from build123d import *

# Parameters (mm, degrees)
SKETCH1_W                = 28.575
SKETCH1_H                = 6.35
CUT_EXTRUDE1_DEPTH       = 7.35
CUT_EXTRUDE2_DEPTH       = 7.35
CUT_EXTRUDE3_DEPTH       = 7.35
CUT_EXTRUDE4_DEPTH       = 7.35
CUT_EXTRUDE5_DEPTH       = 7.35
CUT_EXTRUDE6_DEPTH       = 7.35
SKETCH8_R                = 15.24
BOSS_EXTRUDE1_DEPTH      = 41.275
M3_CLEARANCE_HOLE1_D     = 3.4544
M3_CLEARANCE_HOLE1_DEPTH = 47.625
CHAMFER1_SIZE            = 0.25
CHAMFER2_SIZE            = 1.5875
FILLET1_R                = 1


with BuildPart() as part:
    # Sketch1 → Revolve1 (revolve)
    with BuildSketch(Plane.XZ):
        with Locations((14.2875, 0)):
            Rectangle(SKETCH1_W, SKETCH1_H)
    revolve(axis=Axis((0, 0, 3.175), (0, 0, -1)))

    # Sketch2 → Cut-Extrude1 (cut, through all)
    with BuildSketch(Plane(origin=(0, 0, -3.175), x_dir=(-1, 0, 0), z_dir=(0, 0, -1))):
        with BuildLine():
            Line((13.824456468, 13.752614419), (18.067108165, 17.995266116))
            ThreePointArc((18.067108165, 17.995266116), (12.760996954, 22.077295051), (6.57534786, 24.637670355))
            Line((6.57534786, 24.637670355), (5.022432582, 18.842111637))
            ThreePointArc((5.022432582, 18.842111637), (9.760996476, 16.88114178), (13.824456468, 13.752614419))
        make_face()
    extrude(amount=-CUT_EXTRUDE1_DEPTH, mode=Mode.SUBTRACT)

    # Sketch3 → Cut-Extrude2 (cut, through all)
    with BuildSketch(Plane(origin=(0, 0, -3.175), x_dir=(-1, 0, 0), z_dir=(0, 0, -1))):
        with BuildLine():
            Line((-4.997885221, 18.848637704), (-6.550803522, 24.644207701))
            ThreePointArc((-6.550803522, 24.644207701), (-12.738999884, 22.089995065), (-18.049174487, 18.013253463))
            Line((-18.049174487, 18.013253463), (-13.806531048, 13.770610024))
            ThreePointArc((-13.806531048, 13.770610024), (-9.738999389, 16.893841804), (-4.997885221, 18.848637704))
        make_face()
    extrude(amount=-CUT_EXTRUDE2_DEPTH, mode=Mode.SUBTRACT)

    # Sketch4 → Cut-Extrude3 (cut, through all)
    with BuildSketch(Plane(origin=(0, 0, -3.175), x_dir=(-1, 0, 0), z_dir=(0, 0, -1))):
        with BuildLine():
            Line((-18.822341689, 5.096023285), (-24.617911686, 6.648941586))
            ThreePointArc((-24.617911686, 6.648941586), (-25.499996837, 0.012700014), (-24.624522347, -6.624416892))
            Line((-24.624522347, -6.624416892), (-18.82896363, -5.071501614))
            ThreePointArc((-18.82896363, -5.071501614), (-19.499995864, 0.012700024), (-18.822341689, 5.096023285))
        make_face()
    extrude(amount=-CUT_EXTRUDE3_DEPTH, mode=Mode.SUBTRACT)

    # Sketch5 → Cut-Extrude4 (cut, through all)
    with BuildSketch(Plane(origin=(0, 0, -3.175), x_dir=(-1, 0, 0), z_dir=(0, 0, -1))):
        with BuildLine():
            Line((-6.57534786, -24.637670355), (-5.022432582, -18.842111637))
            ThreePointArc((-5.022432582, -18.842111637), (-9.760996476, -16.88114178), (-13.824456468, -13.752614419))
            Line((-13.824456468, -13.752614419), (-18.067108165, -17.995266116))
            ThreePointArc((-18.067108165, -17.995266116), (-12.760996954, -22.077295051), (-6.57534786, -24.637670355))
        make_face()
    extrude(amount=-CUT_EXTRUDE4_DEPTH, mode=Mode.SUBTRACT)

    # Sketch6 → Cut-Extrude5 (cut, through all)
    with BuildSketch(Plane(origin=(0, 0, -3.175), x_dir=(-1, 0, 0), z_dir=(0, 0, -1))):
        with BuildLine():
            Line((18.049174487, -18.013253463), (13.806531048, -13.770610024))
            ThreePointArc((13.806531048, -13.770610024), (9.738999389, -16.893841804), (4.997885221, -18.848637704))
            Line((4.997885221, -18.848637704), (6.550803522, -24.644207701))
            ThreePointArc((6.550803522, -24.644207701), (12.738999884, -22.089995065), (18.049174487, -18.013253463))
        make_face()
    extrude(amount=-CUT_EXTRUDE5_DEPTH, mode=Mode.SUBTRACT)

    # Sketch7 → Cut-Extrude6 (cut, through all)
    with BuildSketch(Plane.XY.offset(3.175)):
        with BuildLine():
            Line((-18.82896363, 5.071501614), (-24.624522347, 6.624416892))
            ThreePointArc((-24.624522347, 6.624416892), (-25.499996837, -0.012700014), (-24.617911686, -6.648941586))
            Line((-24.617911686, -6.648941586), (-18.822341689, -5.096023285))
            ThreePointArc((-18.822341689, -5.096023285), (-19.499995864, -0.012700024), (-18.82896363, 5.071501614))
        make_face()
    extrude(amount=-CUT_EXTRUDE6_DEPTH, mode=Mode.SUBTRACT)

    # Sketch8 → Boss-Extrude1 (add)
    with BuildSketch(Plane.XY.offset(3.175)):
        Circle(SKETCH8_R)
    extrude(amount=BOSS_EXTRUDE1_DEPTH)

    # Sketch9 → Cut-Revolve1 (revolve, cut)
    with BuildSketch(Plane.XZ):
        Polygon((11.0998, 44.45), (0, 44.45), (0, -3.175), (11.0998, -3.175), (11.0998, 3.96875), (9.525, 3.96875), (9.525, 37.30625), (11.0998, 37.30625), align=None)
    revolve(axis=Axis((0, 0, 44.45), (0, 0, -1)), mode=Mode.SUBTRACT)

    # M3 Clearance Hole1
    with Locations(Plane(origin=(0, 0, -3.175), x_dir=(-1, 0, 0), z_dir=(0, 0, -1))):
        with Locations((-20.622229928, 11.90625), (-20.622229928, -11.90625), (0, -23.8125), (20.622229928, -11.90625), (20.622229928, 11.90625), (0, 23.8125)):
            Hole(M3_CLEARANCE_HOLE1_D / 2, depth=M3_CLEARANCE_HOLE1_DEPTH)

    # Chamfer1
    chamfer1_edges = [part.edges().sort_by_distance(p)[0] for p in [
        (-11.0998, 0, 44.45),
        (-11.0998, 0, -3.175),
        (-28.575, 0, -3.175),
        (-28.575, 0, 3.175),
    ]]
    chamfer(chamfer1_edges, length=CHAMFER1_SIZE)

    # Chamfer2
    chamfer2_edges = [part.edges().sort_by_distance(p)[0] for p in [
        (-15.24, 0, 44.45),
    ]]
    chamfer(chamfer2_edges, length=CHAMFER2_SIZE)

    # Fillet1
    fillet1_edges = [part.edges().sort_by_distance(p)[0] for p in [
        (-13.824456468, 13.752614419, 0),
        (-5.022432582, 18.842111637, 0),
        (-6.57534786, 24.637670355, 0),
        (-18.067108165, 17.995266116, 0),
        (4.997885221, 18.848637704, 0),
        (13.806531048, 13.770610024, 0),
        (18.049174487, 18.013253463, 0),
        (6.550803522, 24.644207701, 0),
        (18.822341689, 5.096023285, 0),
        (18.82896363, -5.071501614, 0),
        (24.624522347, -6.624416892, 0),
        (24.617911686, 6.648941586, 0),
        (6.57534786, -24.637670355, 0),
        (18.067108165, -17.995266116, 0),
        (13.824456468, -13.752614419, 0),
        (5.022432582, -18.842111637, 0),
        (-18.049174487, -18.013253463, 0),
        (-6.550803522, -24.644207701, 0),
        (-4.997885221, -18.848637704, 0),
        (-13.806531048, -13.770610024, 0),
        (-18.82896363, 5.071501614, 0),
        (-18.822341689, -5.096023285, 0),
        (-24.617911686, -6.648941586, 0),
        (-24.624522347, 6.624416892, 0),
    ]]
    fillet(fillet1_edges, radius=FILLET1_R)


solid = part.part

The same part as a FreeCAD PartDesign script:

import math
import FreeCAD as App
import Part
import Sketcher
from FreeCAD import Vector
Q = App.Units.Quantity


def edges_at(feature, points):
    """Names of the edges that pass closest to the given points."""
    edges = feature.Shape.Edges
    near = lambda p: min(range(len(edges)), key=lambda i: edges[i].distToShape(Part.Vertex(*p))[0])
    return sorted({f"Edge{near(p) + 1}" for p in points})


def add_polygon(sketch, points):
    """Adds a closed chain of lines whose ends are joined by coincident constraints."""
    first, n = sketch.GeometryCount, len(points)
    for a, b in zip(points, points[1:] + points[:1]):
        sketch.addGeometry(Part.LineSegment(App.Vector(*a, 0), App.Vector(*b, 0)), False)
    for i in range(n):
        sketch.addConstraint(Sketcher.Constraint("Coincident", first + i, 2, first + (i + 1) % n, 1))

doc = App.newDocument("Part")
body = doc.addObject("PartDesign::Body", "Body")

# Sketch on XZ plane
sketch1 = body.newObject("Sketcher::SketchObject", "Sketch")
sketch1.AttachmentSupport = (doc.getObject("XZ_Plane"), [""])
sketch1.MapMode = "FlatFace"
add_polygon(sketch1, [(0, 3.175), (0, -3.175), (28.575, -3.175), (28.575, 3.175)])  # lines 0-3
sketch1.addConstraint(Sketcher.Constraint("Vertical", 0))
sketch1.addConstraint(Sketcher.Constraint("Horizontal", 1))
sketch1.addConstraint(Sketcher.Constraint("Vertical", 2))
sketch1.addConstraint(Sketcher.Constraint("Horizontal", 3))
sketch1.addConstraint(Sketcher.Constraint("Symmetric", 0, 2, 3, 2, -1, 1))
sketch1.addConstraint(Sketcher.Constraint("DistanceY", 0, 2, 0, 1, Q("0.25 in")))
sketch1.addConstraint(Sketcher.Constraint("DistanceX", 1, 1, 1, 2, Q("1.125 in")))
revolution = body.newObject("PartDesign::Revolution", "Revolution")
revolution.Profile = sketch1
revolution.ReferenceAxis = (sketch1, ["V_Axis"])
revolution.Angle = 360

# Sketch on XY plane
sketch2 = body.newObject("Sketcher::SketchObject", "Sketch001")
sketch2.AttachmentSupport = (doc.getObject("XY_Plane"), [""])
sketch2.MapMode = "FlatFace"
sketch2.AttachmentOffset = App.Placement(Vector(0, 0, -0.125 * 25.4), App.Rotation())
sketch2.addGeometry(Part.LineSegment(Vector(-13.824456, 13.752614, 0), Vector(-18.067108, 17.995266, 0)), False)
sketch2.addGeometry(Part.ArcOfCircle(Part.Circle(Vector(0, 0, 0), Vector(0, 0, 1), 25.5), math.radians(104.942929), math.radians(135.114142)), False)
sketch2.addGeometry(Part.LineSegment(Vector(-6.575348, 24.63767, 0), Vector(-5.022433, 18.842112, 0)), False)
sketch2.addGeometry(Part.ArcOfCircle(Part.Circle(Vector(0, 0, 0), Vector(0, 0, 1), 19.5), math.radians(104.925369), math.radians(135.149263)), False)
sketch2.addConstraint(Sketcher.Constraint("Coincident", 0, 2, 1, 2))
sketch2.addConstraint(Sketcher.Constraint("Coincident", 1, 1, 2, 1))
sketch2.addConstraint(Sketcher.Constraint("Coincident", 2, 2, 3, 1))
sketch2.addConstraint(Sketcher.Constraint("Coincident", 3, 2, 0, 1))
sketch2.addConstraint(Sketcher.Constraint("Coincident", 1, 3, -1, 1))
sketch2.addConstraint(Sketcher.Constraint("Coincident", 3, 3, -1, 1))
sketch2.addConstraint(Sketcher.Constraint("Angle", 0, Q("135 deg")))
sketch2.addConstraint(Sketcher.Constraint("Angle", 2, Q("-75 deg")))
sketch2.addConstraint(Sketcher.Constraint("Radius", 1, 25.5))
sketch2.addConstraint(Sketcher.Constraint("Radius", 3, 19.5))
sketch2.addConstraint(Sketcher.Constraint("DistanceX", 0, 2, -1, 1, 18.067108))
sketch2.addConstraint(Sketcher.Constraint("DistanceY", -1, 1, 1, 1, 24.63767))
pocket1 = body.newObject("PartDesign::Pocket", "Pocket")
pocket1.Profile = sketch2
pocket1.Type = "ThroughAll"
pocket1.Reversed = True

# Sketch on XY plane
sketch3 = body.newObject("Sketcher::SketchObject", "Sketch002")
sketch3.AttachmentSupport = (doc.getObject("XY_Plane"), [""])
sketch3.MapMode = "FlatFace"
sketch3.AttachmentOffset = App.Placement(Vector(0, 0, -0.125 * 25.4), App.Rotation())
sketch3.addGeometry(Part.LineSegment(Vector(4.997885, 18.848638, 0), Vector(6.550804, 24.644208, 0)), False)
sketch3.addGeometry(Part.ArcOfCircle(Part.Circle(Vector(0, 0, 0), Vector(0, 0, 1), 25.5), math.radians(44.942929), math.radians(75.114142)), False)
sketch3.addGeometry(Part.LineSegment(Vector(18.049174, 18.013253, 0), Vector(13.806531, 13.77061, 0)), False)
sketch3.addGeometry(Part.ArcOfCircle(Part.Circle(Vector(0, 0, 0), Vector(0, 0, 1), 19.5), math.radians(44.925369), math.radians(75.149263)), False)
sketch3.addConstraint(Sketcher.Constraint("Coincident", 0, 2, 1, 2))
sketch3.addConstraint(Sketcher.Constraint("Coincident", 1, 1, 2, 1))
sketch3.addConstraint(Sketcher.Constraint("Coincident", 2, 2, 3, 1))
sketch3.addConstraint(Sketcher.Constraint("Coincident", 3, 2, 0, 1))
sketch3.addConstraint(Sketcher.Constraint("Coincident", 1, 3, -1, 1))
sketch3.addConstraint(Sketcher.Constraint("Coincident", 3, 3, -1, 1))
sketch3.addConstraint(Sketcher.Constraint("Angle", 0, Q("75 deg")))
sketch3.addConstraint(Sketcher.Constraint("Angle", 2, Q("-135 deg")))
sketch3.addConstraint(Sketcher.Constraint("Radius", 1, 25.5))
sketch3.addConstraint(Sketcher.Constraint("Radius", 3, 19.5))
sketch3.addConstraint(Sketcher.Constraint("DistanceX", -1, 1, 2, 2, 13.806531))
sketch3.addConstraint(Sketcher.Constraint("DistanceX", 0, 2, 1, 1, 11.498371))
pocket2 = body.newObject("PartDesign::Pocket", "Pocket001")
pocket2.Profile = sketch3
pocket2.Type = "ThroughAll"
pocket2.Reversed = True

# Sketch on XY plane
sketch4 = body.newObject("Sketcher::SketchObject", "Sketch003")
sketch4.AttachmentSupport = (doc.getObject("XY_Plane"), [""])
sketch4.MapMode = "FlatFace"
sketch4.AttachmentOffset = App.Placement(Vector(0, 0, -0.125 * 25.4), App.Rotation())
sketch4.addGeometry(Part.LineSegment(Vector(18.822342, 5.096023, 0), Vector(24.617912, 6.648942, 0)), False)
sketch4.addGeometry(Part.ArcOfCircle(Part.Circle(Vector(0, 0, 0), Vector(0, 0, 1), 25.5), math.radians(-15.057071), math.radians(15.114142)), False)
sketch4.addGeometry(Part.LineSegment(Vector(24.624522, -6.624417, 0), Vector(18.828964, -5.071502, 0)), False)
sketch4.addGeometry(Part.ArcOfCircle(Part.Circle(Vector(0, 0, 0), Vector(0, 0, 1), 19.5), math.radians(-15.074631), math.radians(15.149263)), False)
sketch4.addConstraint(Sketcher.Constraint("Coincident", 0, 2, 1, 2))
sketch4.addConstraint(Sketcher.Constraint("Coincident", 1, 1, 2, 1))
sketch4.addConstraint(Sketcher.Constraint("Coincident", 2, 2, 3, 1))
sketch4.addConstraint(Sketcher.Constraint("Coincident", 3, 2, 0, 1))
sketch4.addConstraint(Sketcher.Constraint("Coincident", 1, 3, -1, 1))
sketch4.addConstraint(Sketcher.Constraint("Coincident", 3, 3, -1, 1))
sketch4.addConstraint(Sketcher.Constraint("Angle", 0, Q("15 deg")))
sketch4.addConstraint(Sketcher.Constraint("Angle", 2, Q("165 deg")))
sketch4.addConstraint(Sketcher.Constraint("Radius", 1, 25.5))
sketch4.addConstraint(Sketcher.Constraint("Radius", 3, 19.5))
sketch4.addConstraint(Sketcher.Constraint("DistanceY", 2, 2, -1, 1, 5.071502))
sketch4.addConstraint(Sketcher.Constraint("DistanceX", -1, 1, 0, 2, 24.617912))
pocket3 = body.newObject("PartDesign::Pocket", "Pocket002")
pocket3.Profile = sketch4
pocket3.Type = "ThroughAll"
pocket3.Reversed = True

# Sketch on XY plane
sketch5 = body.newObject("Sketcher::SketchObject", "Sketch004")
sketch5.AttachmentSupport = (doc.getObject("XY_Plane"), [""])
sketch5.MapMode = "FlatFace"
sketch5.AttachmentOffset = App.Placement(Vector(0, 0, -0.125 * 25.4), App.Rotation())
sketch5.addGeometry(Part.LineSegment(Vector(6.575348, -24.63767, 0), Vector(5.022433, -18.842112, 0)), False)
sketch5.addGeometry(Part.ArcOfCircle(Part.Circle(Vector(0, 0, 0), Vector(0, 0, 1), 19.5), math.radians(-75.074631), math.radians(-44.850737)), False)
sketch5.addGeometry(Part.LineSegment(Vector(13.824456, -13.752614, 0), Vector(18.067108, -17.995266, 0)), False)
sketch5.addGeometry(Part.ArcOfCircle(Part.Circle(Vector(0, 0, 0), Vector(0, 0, 1), 25.5), math.radians(-75.057071), math.radians(-44.885858)), False)
sketch5.addConstraint(Sketcher.Constraint("Coincident", 0, 2, 1, 1))
sketch5.addConstraint(Sketcher.Constraint("Coincident", 1, 2, 2, 1))
sketch5.addConstraint(Sketcher.Constraint("Coincident", 2, 2, 3, 2))
sketch5.addConstraint(Sketcher.Constraint("Coincident", 3, 1, 0, 1))
sketch5.addConstraint(Sketcher.Constraint("Coincident", 1, 3, -1, 1))
sketch5.addConstraint(Sketcher.Constraint("Coincident", 3, 3, -1, 1))
sketch5.addConstraint(Sketcher.Constraint("Angle", 0, Q("105 deg")))
sketch5.addConstraint(Sketcher.Constraint("Angle", 2, Q("-45 deg")))
sketch5.addConstraint(Sketcher.Constraint("Radius", 1, 19.5))
sketch5.addConstraint(Sketcher.Constraint("Radius", 3, 25.5))
sketch5.addConstraint(Sketcher.Constraint("DistanceY", 0, 2, -1, 1, 18.842112))
sketch5.addConstraint(Sketcher.Constraint("DistanceX", -1, 1, 2, 2, 18.067108))
pocket4 = body.newObject("PartDesign::Pocket", "Pocket003")
pocket4.Profile = sketch5
pocket4.Type = "ThroughAll"
pocket4.Reversed = True

# Sketch on XY plane
sketch6 = body.newObject("Sketcher::SketchObject", "Sketch005")
sketch6.AttachmentSupport = (doc.getObject("XY_Plane"), [""])
sketch6.MapMode = "FlatFace"
sketch6.AttachmentOffset = App.Placement(Vector(0, 0, -0.125 * 25.4), App.Rotation())
sketch6.addGeometry(Part.LineSegment(Vector(-18.049174, -18.013253, 0), Vector(-13.806531, -13.77061, 0)), False)
sketch6.addGeometry(Part.ArcOfCircle(Part.Circle(Vector(0, 0, 0), Vector(0, 0, 1), 19.5), math.radians(-135.074631), math.radians(-104.850737)), False)
sketch6.addGeometry(Part.LineSegment(Vector(-4.997885, -18.848638, 0), Vector(-6.550804, -24.644208, 0)), False)
sketch6.addGeometry(Part.ArcOfCircle(Part.Circle(Vector(0, 0, 0), Vector(0, 0, 1), 25.5), math.radians(-135.057071), math.radians(-104.885858)), False)
sketch6.addConstraint(Sketcher.Constraint("Coincident", 0, 2, 1, 1))
sketch6.addConstraint(Sketcher.Constraint("Coincident", 1, 2, 2, 1))
sketch6.addConstraint(Sketcher.Constraint("Coincident", 2, 2, 3, 2))
sketch6.addConstraint(Sketcher.Constraint("Coincident", 3, 1, 0, 1))
sketch6.addConstraint(Sketcher.Constraint("Coincident", 1, 3, -1, 1))
sketch6.addConstraint(Sketcher.Constraint("Coincident", 3, 3, -1, 1))
sketch6.addConstraint(Sketcher.Constraint("Angle", 0, Q("45 deg")))
sketch6.addConstraint(Sketcher.Constraint("Angle", 2, Q("-105 deg")))
sketch6.addConstraint(Sketcher.Constraint("Radius", 1, 19.5))
sketch6.addConstraint(Sketcher.Constraint("Radius", 3, 25.5))
sketch6.addConstraint(Sketcher.Constraint("DistanceX", 0, 2, -1, 1, 13.806531))
sketch6.addConstraint(Sketcher.Constraint("DistanceX", 3, 1, 1, 2, 13.051289))
pocket5 = body.newObject("PartDesign::Pocket", "Pocket004")
pocket5.Profile = sketch6
pocket5.Type = "ThroughAll"
pocket5.Reversed = True

# Sketch on XY plane
sketch7 = body.newObject("Sketcher::SketchObject", "Sketch006")
sketch7.AttachmentSupport = (doc.getObject("XY_Plane"), [""])
sketch7.MapMode = "FlatFace"
sketch7.AttachmentOffset = App.Placement(Vector(0, 0, 0.125 * 25.4), App.Rotation())
sketch7.addGeometry(Part.LineSegment(Vector(-18.828964, 5.071502, 0), Vector(-24.624522, 6.624417, 0)), False)
sketch7.addGeometry(Part.ArcOfCircle(Part.Circle(Vector(0, 0, 0), Vector(0, 0, 1), 25.5), math.radians(164.942929), math.radians(195.114142)), False)
sketch7.addGeometry(Part.LineSegment(Vector(-24.617912, -6.648942, 0), Vector(-18.822342, -5.096023, 0)), False)
sketch7.addGeometry(Part.ArcOfCircle(Part.Circle(Vector(0, 0, 0), Vector(0, 0, 1), 19.5), math.radians(164.925369), math.radians(195.149263)), False)
sketch7.addConstraint(Sketcher.Constraint("Coincident", 0, 2, 1, 1))
sketch7.addConstraint(Sketcher.Constraint("Coincident", 1, 2, 2, 1))
sketch7.addConstraint(Sketcher.Constraint("Coincident", 2, 2, 3, 2))
sketch7.addConstraint(Sketcher.Constraint("Coincident", 3, 1, 0, 1))
sketch7.addConstraint(Sketcher.Constraint("Coincident", 1, 3, -1, 1))
sketch7.addConstraint(Sketcher.Constraint("Coincident", 3, 3, -1, 1))
sketch7.addConstraint(Sketcher.Constraint("Angle", 0, Q("165 deg")))
sketch7.addConstraint(Sketcher.Constraint("Angle", 2, Q("15 deg")))
sketch7.addConstraint(Sketcher.Constraint("Radius", 1, 25.5))
sketch7.addConstraint(Sketcher.Constraint("Radius", 3, 19.5))
sketch7.addConstraint(Sketcher.Constraint("DistanceY", -1, 1, 3, 1, 5.071502))
sketch7.addConstraint(Sketcher.Constraint("DistanceX", 1, 2, -1, 1, 24.617912))
pocket6 = body.newObject("PartDesign::Pocket", "Pocket005")
pocket6.Profile = sketch7
pocket6.Type = "ThroughAll"

# Sketch on XY plane
sketch8 = body.newObject("Sketcher::SketchObject", "Sketch007")
sketch8.AttachmentSupport = (doc.getObject("XY_Plane"), [""])
sketch8.MapMode = "FlatFace"
sketch8.AttachmentOffset = App.Placement(Vector(0, 0, 0.125 * 25.4), App.Rotation())
sketch8.addGeometry(Part.Circle(Vector(0, 0, 0), Vector(0, 0, 1), 15.24), False)
sketch8.addConstraint(Sketcher.Constraint("Coincident", 0, 3, -1, 1))
sketch8.addConstraint(Sketcher.Constraint("Diameter", 0, Q("1.2 in")))
pad1 = body.newObject("PartDesign::Pad", "Pad")
pad1.Profile = sketch8
pad1.Length = Q("1.625 in")

# Sketch on XZ plane
sketch9 = body.newObject("Sketcher::SketchObject", "Sketch008")
sketch9.AttachmentSupport = (doc.getObject("XZ_Plane"), [""])
sketch9.MapMode = "FlatFace"
add_polygon(sketch9, [(11.0998, 44.45), (0, 44.45), (0, -3.175), (11.0998, -3.175), (11.0998, 3.96875), (9.525, 3.96875), (9.525, 37.30625), (11.0998, 37.30625)])  # lines 0-7
sketch9.addConstraint(Sketcher.Constraint("Horizontal", 0))
sketch9.addConstraint(Sketcher.Constraint("Vertical", 1))
sketch9.addConstraint(Sketcher.Constraint("Horizontal", 2))
sketch9.addConstraint(Sketcher.Constraint("Vertical", 3))
sketch9.addConstraint(Sketcher.Constraint("Horizontal", 4))
sketch9.addConstraint(Sketcher.Constraint("Vertical", 5))
sketch9.addConstraint(Sketcher.Constraint("Horizontal", 6))
sketch9.addConstraint(Sketcher.Constraint("Vertical", 7))
sketch9.addConstraint(Sketcher.Constraint("PointOnObject", 0, 2, -2))
sketch9.addConstraint(Sketcher.Constraint("Vertical", 3, 2, 6, 2))
sketch9.addConstraint(Sketcher.Constraint("Equal", 3, 7))
sketch9.addConstraint(Sketcher.Constraint("DistanceX", 0, 2, 0, 1, Q("0.437 in")))
sketch9.addConstraint(Sketcher.Constraint("DistanceX", 4, 2, 4, 1, Q("0.062 in")))
sketch9.addConstraint(Sketcher.Constraint("DistanceY", 1, 2, 1, 1, Q("1.875 in")))
sketch9.addConstraint(Sketcher.Constraint("DistanceY", 3, 1, 3, 2, Q("0.28125 in")))
sketch9.addConstraint(Sketcher.Constraint("DistanceY", -1, 1, 0, 2, Q("1.75 in")))
groove = body.newObject("PartDesign::Groove", "Groove")
groove.Profile = sketch9
groove.ReferenceAxis = (sketch9, ["V_Axis"])
groove.Angle = 360

# Sketch on XY plane
sketch10 = body.newObject("Sketcher::SketchObject", "Sketch009")
sketch10.AttachmentSupport = (doc.getObject("XY_Plane"), [""])
sketch10.MapMode = "FlatFace"
sketch10.AttachmentOffset = App.Placement(Vector(0, 0, -0.125 * 25.4), App.Rotation())
sketch10.addGeometry(Part.Circle(Vector(20.62223, 11.90625, 0), Vector(0, 0, 1), 1.7272), False)
sketch10.addGeometry(Part.Circle(Vector(20.62223, -11.90625, 0), Vector(0, 0, 1), 1.7272), False)
sketch10.addGeometry(Part.Circle(Vector(0, -23.8125, 0), Vector(0, 0, 1), 1.7272), False)
sketch10.addGeometry(Part.Circle(Vector(-20.62223, -11.90625, 0), Vector(0, 0, 1), 1.7272), False)
sketch10.addGeometry(Part.Circle(Vector(-20.62223, 11.90625, 0), Vector(0, 0, 1), 1.7272), False)
sketch10.addGeometry(Part.Circle(Vector(0, 23.8125, 0), Vector(0, 0, 1), 1.7272), False)
sketch10.addConstraint(Sketcher.Constraint("Equal", 0, 1))
sketch10.addConstraint(Sketcher.Constraint("Equal", 1, 2))
sketch10.addConstraint(Sketcher.Constraint("Equal", 2, 3))
sketch10.addConstraint(Sketcher.Constraint("Equal", 3, 4))
sketch10.addConstraint(Sketcher.Constraint("Equal", 4, 5))
sketch10.addConstraint(Sketcher.Constraint("Symmetric", 0, 3, 3, 3, -1, 1))
sketch10.addConstraint(Sketcher.Constraint("Symmetric", 1, 3, 4, 3, -1, 1))
sketch10.addConstraint(Sketcher.Constraint("Symmetric", 2, 3, 5, 3, -1, 1))
sketch10.addConstraint(Sketcher.Constraint("Symmetric", 1, 3, 3, 3, -2))
sketch10.addConstraint(Sketcher.Constraint("PointOnObject", 2, 3, -2))
sketch10.addConstraint(Sketcher.Constraint("Diameter", 0, Q("0.136 in")))
sketch10.addConstraint(Sketcher.Constraint("DistanceY", -1, 1, 0, 3, Q("0.46875 in")))
sketch10.addConstraint(Sketcher.Constraint("DistanceY", 2, 3, -1, 1, Q("0.9375 in")))
sketch10.addConstraint(Sketcher.Constraint("DistanceX", -1, 1, 0, 3, 20.62223))
doc.recompute()
hole = body.newObject("PartDesign::Hole", "Hole")
hole.Profile = sketch10
hole.ThreadType = "None"
hole.Diameter = Q("0.136 in")
hole.DepthType = "Dimension"
hole.Depth = Q("1.875 in")
hole.DrillPoint = "Flat"
hole.Reversed = True
doc.recompute()

chamfer = body.newObject("PartDesign::Chamfer", "Chamfer")
chamfer.Base = (hole, edges_at(hole, [
    (-11.1, 0, 44.45),
    (-11.1, 0, -3.175),
    (-28.575, 0, -3.175),
    (-28.575, 0, 3.175),
]))
chamfer.Size = 0.25
doc.recompute()

chamfer2 = body.newObject("PartDesign::Chamfer", "Chamfer001")
chamfer2.Base = (chamfer, edges_at(chamfer, [(-15.24, 0, 44.45)]))
chamfer2.Size = Q("0.0625 in")
doc.recompute()

fillet = body.newObject("PartDesign::Fillet", "Fillet")
fillet.Base = (chamfer2, edges_at(chamfer2, [
    (-13.824, 13.753, 0),
    (-5.022, 18.842, 0),
    (-6.575, 24.638, 0),
    (-18.067, 17.995, 0),
    (4.998, 18.849, 0),
    (13.807, 13.771, 0),
    (18.049, 18.013, 0),
    (6.551, 24.644, 0),
    (18.822, 5.096, 0),
    (18.829, -5.072, 0),
    (24.625, -6.624, 0),
    (24.618, 6.649, 0),
    (6.575, -24.638, 0),
    (18.067, -17.995, 0),
    (13.824, -13.753, 0),
    (5.022, -18.842, 0),
    (-18.049, -18.013, 0),
    (-6.551, -24.644, 0),
    (-4.998, -18.849, 0),
    (-13.807, -13.771, 0),
    (-18.829, 5.072, 0),
    (-18.822, -5.096, 0),
    (-24.618, -6.649, 0),
    (-24.625, 6.624, 0),
]))
fillet.Radius = 1

doc.recompute()
